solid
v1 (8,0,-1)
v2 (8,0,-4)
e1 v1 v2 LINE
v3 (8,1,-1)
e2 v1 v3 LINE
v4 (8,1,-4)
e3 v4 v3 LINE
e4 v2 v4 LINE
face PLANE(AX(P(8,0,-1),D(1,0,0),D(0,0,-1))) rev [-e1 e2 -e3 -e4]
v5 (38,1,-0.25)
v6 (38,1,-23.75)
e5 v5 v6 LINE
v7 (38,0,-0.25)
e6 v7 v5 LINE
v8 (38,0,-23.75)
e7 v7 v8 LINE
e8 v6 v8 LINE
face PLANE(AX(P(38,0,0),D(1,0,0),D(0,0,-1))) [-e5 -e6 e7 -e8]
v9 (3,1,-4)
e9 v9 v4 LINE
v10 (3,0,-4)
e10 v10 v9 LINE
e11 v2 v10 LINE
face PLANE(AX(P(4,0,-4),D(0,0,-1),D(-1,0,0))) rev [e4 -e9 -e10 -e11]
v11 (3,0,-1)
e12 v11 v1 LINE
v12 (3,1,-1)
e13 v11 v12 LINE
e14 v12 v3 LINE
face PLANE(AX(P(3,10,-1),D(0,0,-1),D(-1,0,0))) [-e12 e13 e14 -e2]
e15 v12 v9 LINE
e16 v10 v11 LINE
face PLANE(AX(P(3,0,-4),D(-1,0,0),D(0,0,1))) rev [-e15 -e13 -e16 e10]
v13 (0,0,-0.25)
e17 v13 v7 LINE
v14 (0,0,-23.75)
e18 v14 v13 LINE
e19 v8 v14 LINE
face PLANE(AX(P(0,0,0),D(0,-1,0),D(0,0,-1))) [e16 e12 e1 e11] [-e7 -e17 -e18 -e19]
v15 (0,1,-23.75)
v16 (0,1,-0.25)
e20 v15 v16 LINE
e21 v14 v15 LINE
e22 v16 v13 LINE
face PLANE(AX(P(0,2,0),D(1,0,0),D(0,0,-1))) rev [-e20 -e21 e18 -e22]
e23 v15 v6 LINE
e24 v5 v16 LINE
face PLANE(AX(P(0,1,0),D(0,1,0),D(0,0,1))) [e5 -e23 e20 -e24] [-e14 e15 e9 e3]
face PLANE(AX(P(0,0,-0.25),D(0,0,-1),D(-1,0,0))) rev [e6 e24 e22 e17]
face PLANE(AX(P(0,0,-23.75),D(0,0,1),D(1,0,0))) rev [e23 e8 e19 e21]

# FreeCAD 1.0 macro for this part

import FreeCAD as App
import Part
import Sketcher
from FreeCAD import Vector

doc = App.newDocument("Part")
body = doc.addObject("PartDesign::Body", "Body")

# Sketch on XZ plane
sketch1 = body.newObject("Sketcher::SketchObject", "Sketch")
sketch1.AttachmentSupport = (doc.getObject("XZ_Plane"), [""])
sketch1.MapMode = "FlatFace"
sketch1.addGeometry([
    Part.LineSegment(Vector(0, -24, 0), Vector(0, 0, 0)),
    Part.LineSegment(Vector(0, 0, 0), Vector(40, 0, 0)),
    Part.LineSegment(Vector(40, 0, 0), Vector(40, -24, 0)),
    Part.LineSegment(Vector(40, -24, 0), Vector(0, -24, 0)),
], False)
sketch1.addConstraint([
    Sketcher.Constraint("Coincident", 0, 2, 1, 1),
    Sketcher.Constraint("Coincident", 1, 2, 2, 1),
    Sketcher.Constraint("Coincident", 2, 2, 3, 1),
    Sketcher.Constraint("Coincident", 3, 2, 0, 1),
    Sketcher.Constraint("Vertical", 0),
    Sketcher.Constraint("Horizontal", 1),
    Sketcher.Constraint("Vertical", 2),
    Sketcher.Constraint("Horizontal", 3),
    Sketcher.Constraint("Coincident", 0, 2, -1, 1),
    Sketcher.Constraint("DistanceX", 1, 1, 1, 2, 40.0),
    Sketcher.Constraint("DistanceY", 0, 1, 0, 2, 24.0),
])
pad1 = body.newObject("PartDesign::Pad", "Pad")
pad1.Profile = sketch1
pad1.Length = 2
pad1.Reversed = True

# Sketch on XZ plane
sketch2 = body.newObject("Sketcher::SketchObject", "Sketch001")
sketch2.AttachmentSupport = (doc.getObject("XZ_Plane"), [""])
sketch2.MapMode = "FlatFace"
sketch2.AttachmentOffset = App.Placement(Vector(0, 0, -2), App.Rotation())
sketch2.addGeometry([
    Part.LineSegment(Vector(0, -24, 0), Vector(0, 0, 0)),  # 0
    Part.LineSegment(Vector(0, 0, 0), Vector(40, 0, 0)),  # 1
    Part.LineSegment(Vector(40, 0, 0), Vector(40, -24, 0)),  # 2
    Part.LineSegment(Vector(40, -24, 0), Vector(0, -24, 0)),  # 3
    Part.LineSegment(Vector(39, -1, 0), Vector(3, -1, 0)),  # 4
    Part.LineSegment(Vector(3, -1, 0), Vector(3, -23, 0)),  # 5
    Part.LineSegment(Vector(3, -23, 0), Vector(39, -23, 0)),  # 6
    Part.LineSegment(Vector(39, -23, 0), Vector(39, -1, 0)),  # 7
], False)
sketch2.addConstraint([
    Sketcher.Constraint("Coincident", 0, 2, 1, 1),
    Sketcher.Constraint("Coincident", 1, 2, 2, 1),
    Sketcher.Constraint("Coincident", 2, 2, 3, 1),
    Sketcher.Constraint("Coincident", 3, 2, 0, 1),
    Sketcher.Constraint("Coincident", 4, 2, 5, 1),
    Sketcher.Constraint("Coincident", 5, 2, 6, 1),
    Sketcher.Constraint("Coincident", 6, 2, 7, 1),
    Sketcher.Constraint("Coincident", 7, 2, 4, 1),
    Sketcher.Constraint("Vertical", 0),
    Sketcher.Constraint("Horizontal", 1),
    Sketcher.Constraint("Vertical", 2),
    Sketcher.Constraint("Horizontal", 3),
    Sketcher.Constraint("Horizontal", 4),
    Sketcher.Constraint("Vertical", 5),
    Sketcher.Constraint("Horizontal", 6),
    Sketcher.Constraint("Vertical", 7),
    Sketcher.Constraint("Coincident", 0, 2, -1, 1),
    Sketcher.Constraint("DistanceX", 1, 1, 1, 2, 40.0),
    Sketcher.Constraint("DistanceX", 4, 2, 4, 1, 36.0),
    Sketcher.Constraint("DistanceY", 0, 1, 0, 2, 24.0),
    Sketcher.Constraint("DistanceY", 5, 2, 5, 1, 22.0),
    Sketcher.Constraint("DistanceX", -1, 1, 4, 2, 3.0),
    Sketcher.Constraint("DistanceY", 4, 2, -1, 1, 1.0),
])
pad2 = body.newObject("PartDesign::Pad", "Pad001")
pad2.Profile = sketch2
pad2.Length = 8
pad2.Reversed = True

# Sketch on XZ plane
sketch3 = body.newObject("Sketcher::SketchObject", "Sketch002")
sketch3.AttachmentSupport = (doc.getObject("XZ_Plane"), [""])
sketch3.MapMode = "FlatFace"
sketch3.AttachmentOffset = App.Placement(Vector(0, 0, -2), App.Rotation())
sketch3.addGeometry([
    Part.LineSegment(Vector(4, -4, 0), Vector(4, -1, 0)),
    Part.LineSegment(Vector(4, -1, 0), Vector(8, -1, 0)),
    Part.LineSegment(Vector(8, -1, 0), Vector(8, -4, 0)),
    Part.LineSegment(Vector(8, -4, 0), Vector(4, -4, 0)),
], False)
sketch3.addConstraint([
    Sketcher.Constraint("Coincident", 0, 2, 1, 1),
    Sketcher.Constraint("Coincident", 1, 2, 2, 1),
    Sketcher.Constraint("Coincident", 2, 2, 3, 1),
    Sketcher.Constraint("Coincident", 3, 2, 0, 1),
    Sketcher.Constraint("Vertical", 0),
    Sketcher.Constraint("Horizontal", 1),
    Sketcher.Constraint("Vertical", 2),
    Sketcher.Constraint("Horizontal", 3),
    Sketcher.Constraint("DistanceX", 1, 1, 1, 2, 4.0),
    Sketcher.Constraint("DistanceY", 0, 1, 0, 2, 3.0),
    Sketcher.Constraint("DistanceX", -1, 1, 0, 2, 4.0),
    Sketcher.Constraint("DistanceY", 0, 2, -1, 1, 1.0),
])
pocket1 = body.newObject("PartDesign::Pocket", "Pocket")
pocket1.Profile = sketch3
pocket1.Length = 2
pocket1.Reversed = True

# Sketch on YZ plane
sketch4 = body.newObject("Sketcher::SketchObject", "Sketch003")
sketch4.AttachmentSupport = (doc.getObject("YZ_Plane"), [""])
sketch4.MapMode = "FlatFace"
sketch4.AttachmentOffset = App.Placement(Vector(0, 0, 40), App.Rotation())
sketch4.addGeometry([
    Part.LineSegment(Vector(10, 0, 0), Vector(0, 0, 0)),
    Part.LineSegment(Vector(0, 0, 0), Vector(0, -24, 0)),
    Part.LineSegment(Vector(0, -24, 0), Vector(10, -24, 0)),
    Part.LineSegment(Vector(10, -24, 0), Vector(10, 0, 0)),
], False)
sketch4.addConstraint([
    Sketcher.Constraint("Coincident", 0, 2, 1, 1),
    Sketcher.Constraint("Coincident", 1, 2, 2, 1),
    Sketcher.Constraint("Coincident", 2, 2, 3, 1),
    Sketcher.Constraint("Coincident", 3, 2, 0, 1),
    Sketcher.Constraint("Horizontal", 0),
    Sketcher.Constraint("Vertical", 1),
    Sketcher.Constraint("Horizontal", 2),
    Sketcher.Constraint("Vertical", 3),
    Sketcher.Constraint("Coincident", 0, 2, -1, 1),
    Sketcher.Constraint("DistanceX", 0, 2, 0, 1, 10.0),
    Sketcher.Constraint("DistanceY", 1, 2, 1, 1, 24.0),
])
pocket2 = body.newObject("PartDesign::Pocket", "Pocket001")
pocket2.Profile = sketch4
pocket2.Length = 2

# Sketch on YZ plane
sketch5 = body.newObject("Sketcher::SketchObject", "Sketch004")
sketch5.AttachmentSupport = (doc.getObject("YZ_Plane"), [""])
sketch5.MapMode = "FlatFace"
sketch5.AttachmentOffset = App.Placement(Vector(0, 0, 3), App.Rotation())
sketch5.addGeometry([
    Part.LineSegment(Vector(10, -1, 0), Vector(2, -1, 0)),
    Part.LineSegment(Vector(2, -1, 0), Vector(2, -23, 0)),
    Part.LineSegment(Vector(2, -23, 0), Vector(10, -23, 0)),
    Part.LineSegment(Vector(10, -23, 0), Vector(10, -1, 0)),
], False)
sketch5.addConstraint([
    Sketcher.Constraint("Coincident", 0, 2, 1, 1),
    Sketcher.Constraint("Coincident", 1, 2, 2, 1),
    Sketcher.Constraint("Coincident", 2, 2, 3, 1),
    Sketcher.Constraint("Coincident", 3, 2, 0, 1),
    Sketcher.Constraint("Horizontal", 0),
    Sketcher.Constraint("Vertical", 1),
    Sketcher.Constraint("Horizontal", 2),
    Sketcher.Constraint("Vertical", 3),
    Sketcher.Constraint("DistanceX", 0, 2, 0, 1, 8.0),
    Sketcher.Constraint("DistanceY", 1, 2, 1, 1, 22.0),
    Sketcher.Constraint("DistanceX", -1, 1, 0, 2, 2.0),
    Sketcher.Constraint("DistanceY", 0, 2, -1, 1, 1.0),
])
pocket3 = body.newObject("PartDesign::Pocket", "Pocket002")
pocket3.Profile = sketch5
pocket3.Length = 2

# Sketch on XZ plane
sketch6 = body.newObject("Sketcher::SketchObject", "Sketch005")
sketch6.AttachmentSupport = (doc.getObject("XZ_Plane"), [""])
sketch6.MapMode = "FlatFace"
sketch6.AttachmentOffset = App.Placement(Vector(0, 0, -2), App.Rotation())
sketch6.addGeometry([
    Part.LineSegment(Vector(3, -4, 0), Vector(3, -1, 0)),
    Part.LineSegment(Vector(3, -1, 0), Vector(4, -1, 0)),
    Part.LineSegment(Vector(4, -1, 0), Vector(4, -4, 0)),
    Part.LineSegment(Vector(4, -4, 0), Vector(3, -4, 0)),
], False)
sketch6.addConstraint([
    Sketcher.Constraint("Coincident", 0, 2, 1, 1),
    Sketcher.Constraint("Coincident", 1, 2, 2, 1),
    Sketcher.Constraint("Coincident", 2, 2, 3, 1),
    Sketcher.Constraint("Coincident", 3, 2, 0, 1),
    Sketcher.Constraint("Vertical", 0),
    Sketcher.Constraint("Horizontal", 1),
    Sketcher.Constraint("Vertical", 2),
    Sketcher.Constraint("Horizontal", 3),
    Sketcher.Constraint("DistanceX", 1, 1, 1, 2, 1.0),
    Sketcher.Constraint("DistanceY", 0, 1, 0, 2, 3.0),
    Sketcher.Constraint("DistanceX", -1, 1, 0, 2, 3.0),
    Sketcher.Constraint("DistanceY", 0, 2, -1, 1, 1.0),
])
pocket4 = body.newObject("PartDesign::Pocket", "Pocket003")
pocket4.Profile = sketch6
pocket4.Length = 2
pocket4.Reversed = True

# Sketch on XZ plane
sketch7 = body.newObject("Sketcher::SketchObject", "Sketch006")
sketch7.AttachmentSupport = (doc.getObject("XZ_Plane"), [""])
sketch7.MapMode = "FlatFace"
sketch7.AttachmentOffset = App.Placement(Vector(0, 0, -10), App.Rotation())
sketch7.addGeometry([
    Part.LineSegment(Vector(0, -24, 0), Vector(0, 0, 0)),
    Part.LineSegment(Vector(0, 0, 0), Vector(38, 0, 0)),
    Part.LineSegment(Vector(38, 0, 0), Vector(38, -24, 0)),
    Part.LineSegment(Vector(38, -24, 0), Vector(0, -24, 0)),
], False)
sketch7.addConstraint([
    Sketcher.Constraint("Coincident", 0, 2, 1, 1),
    Sketcher.Constraint("Coincident", 1, 2, 2, 1),
    Sketcher.Constraint("Coincident", 2, 2, 3, 1),
    Sketcher.Constraint("Coincident", 3, 2, 0, 1),
    Sketcher.Constraint("Vertical", 0),
    Sketcher.Constraint("Horizontal", 1),
    Sketcher.Constraint("Vertical", 2),
    Sketcher.Constraint("Horizontal", 3),
    Sketcher.Constraint("Coincident", 0, 2, -1, 1),
    Sketcher.Constraint("DistanceX", 1, 1, 1, 2, 38.0),
    Sketcher.Constraint("DistanceY", 0, 1, 0, 2, 24.0),
])
pocket5 = body.newObject("PartDesign::Pocket", "Pocket004")
pocket5.Profile = sketch7
pocket5.Length = 9
pocket5.Reversed = True

# Sketch on XY plane
sketch8 = body.newObject("Sketcher::SketchObject", "Sketch007")
sketch8.AttachmentSupport = (doc.getObject("XY_Plane"), [""])
sketch8.MapMode = "FlatFace"
sketch8.addGeometry([
    Part.LineSegment(Vector(0, 1, 0), Vector(0, 0, 0)),
    Part.LineSegment(Vector(0, 0, 0), Vector(38, 0, 0)),
    Part.LineSegment(Vector(38, 0, 0), Vector(38, 1, 0)),
    Part.LineSegment(Vector(38, 1, 0), Vector(0, 1, 0)),
], False)
sketch8.addConstraint([
    Sketcher.Constraint("Coincident", 0, 2, 1, 1),
    Sketcher.Constraint("Coincident", 1, 2, 2, 1),
    Sketcher.Constraint("Coincident", 2, 2, 3, 1),
    Sketcher.Constraint("Coincident", 3, 2, 0, 1),
    Sketcher.Constraint("Vertical", 0),
    Sketcher.Constraint("Horizontal", 1),
    Sketcher.Constraint("Vertical", 2),
    Sketcher.Constraint("Horizontal", 3),
    Sketcher.Constraint("Coincident", 0, 2, -1, 1),
    Sketcher.Constraint("DistanceX", 1, 1, 1, 2, 38.0),
    Sketcher.Constraint("DistanceY", 0, 2, 0, 1, 1.0),
])
pocket6 = body.newObject("PartDesign::Pocket", "Pocket005")
pocket6.Profile = sketch8
pocket6.Length = 0.25

# Sketch on XY plane
sketch9 = body.newObject("Sketcher::SketchObject", "Sketch008")
sketch9.AttachmentSupport = (doc.getObject("XY_Plane"), [""])
sketch9.MapMode = "FlatFace"
sketch9.AttachmentOffset = App.Placement(Vector(0, 0, -24), App.Rotation())
sketch9.addGeometry([
    Part.LineSegment(Vector(38, 1, 0), Vector(38, 0, 0)),
    Part.LineSegment(Vector(38, 0, 0), Vector(0, 0, 0)),
    Part.LineSegment(Vector(0, 0, 0), Vector(0, 1, 0)),
    Part.LineSegment(Vector(0, 1, 0), Vector(38, 1, 0)),
], False)
sketch9.addConstraint([
    Sketcher.Constraint("Coincident", 0, 2, 1, 1),
    Sketcher.Constraint("Coincident", 1, 2, 2, 1),
    Sketcher.Constraint("Coincident", 2, 2, 3, 1),
    Sketcher.Constraint("Coincident", 3, 2, 0, 1),
    Sketcher.Constraint("Vertical", 0),
    Sketcher.Constraint("Horizontal", 1),
    Sketcher.Constraint("Vertical", 2),
    Sketcher.Constraint("Horizontal", 3),
    Sketcher.Constraint("Coincident", 1, 2, -1, 1),
    Sketcher.Constraint("DistanceX", 1, 2, 1, 1, 38.0),
    Sketcher.Constraint("DistanceY", 0, 2, 0, 1, 1.0),
])
pocket7 = body.newObject("PartDesign::Pocket", "Pocket006")
pocket7.Profile = sketch9
pocket7.Length = 0.25
pocket7.Reversed = True

doc.recompute()
